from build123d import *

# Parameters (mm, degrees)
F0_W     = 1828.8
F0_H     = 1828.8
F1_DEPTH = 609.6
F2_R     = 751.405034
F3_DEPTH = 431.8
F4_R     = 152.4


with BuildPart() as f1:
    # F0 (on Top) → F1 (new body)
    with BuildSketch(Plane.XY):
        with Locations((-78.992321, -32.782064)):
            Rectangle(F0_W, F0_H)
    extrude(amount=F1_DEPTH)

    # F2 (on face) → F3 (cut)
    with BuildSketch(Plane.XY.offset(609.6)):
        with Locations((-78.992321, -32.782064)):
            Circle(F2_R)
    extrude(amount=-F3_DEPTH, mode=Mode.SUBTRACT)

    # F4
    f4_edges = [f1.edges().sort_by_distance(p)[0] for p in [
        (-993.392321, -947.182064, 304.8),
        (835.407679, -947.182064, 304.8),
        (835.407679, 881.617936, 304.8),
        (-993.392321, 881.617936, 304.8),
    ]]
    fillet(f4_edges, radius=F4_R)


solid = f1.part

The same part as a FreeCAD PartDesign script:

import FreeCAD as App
import Part
import Sketcher

V = App.Vector
Q = App.Units.Quantity


def edges_at(feature, points):
    """Names of the edges that pass closest to the given points."""
    edges = feature.Shape.Edges
    near = lambda p: min(range(len(edges)), key=lambda i: edges[i].distToShape(Part.Vertex(*p))[0])
    return sorted({f"Edge{near(p) + 1}" for p in points})

doc = App.newDocument("Part")
body = doc.addObject("PartDesign::Body", "Body")

sketch1 = body.newObject("Sketcher::SketchObject", "Sketch")
sketch1.AttachmentSupport = (doc.getObject("XY_Plane"), [""])
sketch1.MapMode = "FlatFace"
sketch1.addGeometry(Part.LineSegment(V(-993, 882, 0), V(-993, -947, 0)), False)
sketch1.addGeometry(Part.LineSegment(V(-993, -947, 0), V(835, -947, 0)), False)
sketch1.addGeometry(Part.LineSegment(V(835, -947, 0), V(835, 882, 0)), False)
sketch1.addGeometry(Part.LineSegment(V(835, 882, 0), V(-993, 882, 0)), False)
sketch1.addConstraint(Sketcher.Constraint("Coincident", 0, 2, 1, 1))
sketch1.addConstraint(Sketcher.Constraint("Coincident", 1, 2, 2, 1))
sketch1.addConstraint(Sketcher.Constraint("Coincident", 2, 2, 3, 1))
sketch1.addConstraint(Sketcher.Constraint("Coincident", 3, 2, 0, 1))
sketch1.addConstraint(Sketcher.Constraint("Vertical", 0))
sketch1.addConstraint(Sketcher.Constraint("Horizontal", 1))
sketch1.addConstraint(Sketcher.Constraint("Vertical", 2))
sketch1.addConstraint(Sketcher.Constraint("Horizontal", 3))
sketch1.addConstraint(Sketcher.Constraint("Equal", 3, 0))
sketch1.addConstraint(Sketcher.Constraint("DistanceX", 1, 1, 1, 2, Q("72 in")))
sketch1.addConstraint(Sketcher.Constraint("DistanceX", 0, 2, -1, 1, Q("993.392321 mm")))
sketch1.addConstraint(Sketcher.Constraint("DistanceY", 0, 2, -1, 1, Q("947.182064 mm")))
pad1 = body.newObject("PartDesign::Pad", "Pad")
pad1.Profile = sketch1
pad1.Length = Q("24 in")

sketch2 = body.newObject("Sketcher::SketchObject", "Sketch001")
sketch2.AttachmentSupport = (doc.getObject("XY_Plane"), [""])
sketch2.MapMode = "FlatFace"
sketch2.AttachmentOffset = App.Placement(V(0, 0, 24 * 25.4), App.Rotation())
sketch2.addGeometry(Part.Circle(V(-79, -33, 0), V(0, 0, 1), 751), False)
sketch2.addConstraint(Sketcher.Constraint("Diameter", 0, Q("1502.810068 mm")))
sketch2.addConstraint(Sketcher.Constraint("DistanceX", 0, 3, -1, 1, Q("78.992321 mm")))
sketch2.addConstraint(Sketcher.Constraint("DistanceY", 0, 3, -1, 1, Q("32.782064 mm")))
pocket1 = body.newObject("PartDesign::Pocket", "Pocket")
pocket1.Profile = sketch2
pocket1.Length = Q("17 in")
doc.recompute()

fillet = body.newObject("PartDesign::Fillet", "Fillet")
fillet.Base = (pocket1, edges_at(pocket1, [
    (-993.392, -947.182, 304.8),
    (835.408, -947.182, 304.8),
    (835.408, 881.618, 304.8),
    (-993.392, 881.618, 304.8),
]))
fillet.Radius = Q("6 in")

doc.recompute()
